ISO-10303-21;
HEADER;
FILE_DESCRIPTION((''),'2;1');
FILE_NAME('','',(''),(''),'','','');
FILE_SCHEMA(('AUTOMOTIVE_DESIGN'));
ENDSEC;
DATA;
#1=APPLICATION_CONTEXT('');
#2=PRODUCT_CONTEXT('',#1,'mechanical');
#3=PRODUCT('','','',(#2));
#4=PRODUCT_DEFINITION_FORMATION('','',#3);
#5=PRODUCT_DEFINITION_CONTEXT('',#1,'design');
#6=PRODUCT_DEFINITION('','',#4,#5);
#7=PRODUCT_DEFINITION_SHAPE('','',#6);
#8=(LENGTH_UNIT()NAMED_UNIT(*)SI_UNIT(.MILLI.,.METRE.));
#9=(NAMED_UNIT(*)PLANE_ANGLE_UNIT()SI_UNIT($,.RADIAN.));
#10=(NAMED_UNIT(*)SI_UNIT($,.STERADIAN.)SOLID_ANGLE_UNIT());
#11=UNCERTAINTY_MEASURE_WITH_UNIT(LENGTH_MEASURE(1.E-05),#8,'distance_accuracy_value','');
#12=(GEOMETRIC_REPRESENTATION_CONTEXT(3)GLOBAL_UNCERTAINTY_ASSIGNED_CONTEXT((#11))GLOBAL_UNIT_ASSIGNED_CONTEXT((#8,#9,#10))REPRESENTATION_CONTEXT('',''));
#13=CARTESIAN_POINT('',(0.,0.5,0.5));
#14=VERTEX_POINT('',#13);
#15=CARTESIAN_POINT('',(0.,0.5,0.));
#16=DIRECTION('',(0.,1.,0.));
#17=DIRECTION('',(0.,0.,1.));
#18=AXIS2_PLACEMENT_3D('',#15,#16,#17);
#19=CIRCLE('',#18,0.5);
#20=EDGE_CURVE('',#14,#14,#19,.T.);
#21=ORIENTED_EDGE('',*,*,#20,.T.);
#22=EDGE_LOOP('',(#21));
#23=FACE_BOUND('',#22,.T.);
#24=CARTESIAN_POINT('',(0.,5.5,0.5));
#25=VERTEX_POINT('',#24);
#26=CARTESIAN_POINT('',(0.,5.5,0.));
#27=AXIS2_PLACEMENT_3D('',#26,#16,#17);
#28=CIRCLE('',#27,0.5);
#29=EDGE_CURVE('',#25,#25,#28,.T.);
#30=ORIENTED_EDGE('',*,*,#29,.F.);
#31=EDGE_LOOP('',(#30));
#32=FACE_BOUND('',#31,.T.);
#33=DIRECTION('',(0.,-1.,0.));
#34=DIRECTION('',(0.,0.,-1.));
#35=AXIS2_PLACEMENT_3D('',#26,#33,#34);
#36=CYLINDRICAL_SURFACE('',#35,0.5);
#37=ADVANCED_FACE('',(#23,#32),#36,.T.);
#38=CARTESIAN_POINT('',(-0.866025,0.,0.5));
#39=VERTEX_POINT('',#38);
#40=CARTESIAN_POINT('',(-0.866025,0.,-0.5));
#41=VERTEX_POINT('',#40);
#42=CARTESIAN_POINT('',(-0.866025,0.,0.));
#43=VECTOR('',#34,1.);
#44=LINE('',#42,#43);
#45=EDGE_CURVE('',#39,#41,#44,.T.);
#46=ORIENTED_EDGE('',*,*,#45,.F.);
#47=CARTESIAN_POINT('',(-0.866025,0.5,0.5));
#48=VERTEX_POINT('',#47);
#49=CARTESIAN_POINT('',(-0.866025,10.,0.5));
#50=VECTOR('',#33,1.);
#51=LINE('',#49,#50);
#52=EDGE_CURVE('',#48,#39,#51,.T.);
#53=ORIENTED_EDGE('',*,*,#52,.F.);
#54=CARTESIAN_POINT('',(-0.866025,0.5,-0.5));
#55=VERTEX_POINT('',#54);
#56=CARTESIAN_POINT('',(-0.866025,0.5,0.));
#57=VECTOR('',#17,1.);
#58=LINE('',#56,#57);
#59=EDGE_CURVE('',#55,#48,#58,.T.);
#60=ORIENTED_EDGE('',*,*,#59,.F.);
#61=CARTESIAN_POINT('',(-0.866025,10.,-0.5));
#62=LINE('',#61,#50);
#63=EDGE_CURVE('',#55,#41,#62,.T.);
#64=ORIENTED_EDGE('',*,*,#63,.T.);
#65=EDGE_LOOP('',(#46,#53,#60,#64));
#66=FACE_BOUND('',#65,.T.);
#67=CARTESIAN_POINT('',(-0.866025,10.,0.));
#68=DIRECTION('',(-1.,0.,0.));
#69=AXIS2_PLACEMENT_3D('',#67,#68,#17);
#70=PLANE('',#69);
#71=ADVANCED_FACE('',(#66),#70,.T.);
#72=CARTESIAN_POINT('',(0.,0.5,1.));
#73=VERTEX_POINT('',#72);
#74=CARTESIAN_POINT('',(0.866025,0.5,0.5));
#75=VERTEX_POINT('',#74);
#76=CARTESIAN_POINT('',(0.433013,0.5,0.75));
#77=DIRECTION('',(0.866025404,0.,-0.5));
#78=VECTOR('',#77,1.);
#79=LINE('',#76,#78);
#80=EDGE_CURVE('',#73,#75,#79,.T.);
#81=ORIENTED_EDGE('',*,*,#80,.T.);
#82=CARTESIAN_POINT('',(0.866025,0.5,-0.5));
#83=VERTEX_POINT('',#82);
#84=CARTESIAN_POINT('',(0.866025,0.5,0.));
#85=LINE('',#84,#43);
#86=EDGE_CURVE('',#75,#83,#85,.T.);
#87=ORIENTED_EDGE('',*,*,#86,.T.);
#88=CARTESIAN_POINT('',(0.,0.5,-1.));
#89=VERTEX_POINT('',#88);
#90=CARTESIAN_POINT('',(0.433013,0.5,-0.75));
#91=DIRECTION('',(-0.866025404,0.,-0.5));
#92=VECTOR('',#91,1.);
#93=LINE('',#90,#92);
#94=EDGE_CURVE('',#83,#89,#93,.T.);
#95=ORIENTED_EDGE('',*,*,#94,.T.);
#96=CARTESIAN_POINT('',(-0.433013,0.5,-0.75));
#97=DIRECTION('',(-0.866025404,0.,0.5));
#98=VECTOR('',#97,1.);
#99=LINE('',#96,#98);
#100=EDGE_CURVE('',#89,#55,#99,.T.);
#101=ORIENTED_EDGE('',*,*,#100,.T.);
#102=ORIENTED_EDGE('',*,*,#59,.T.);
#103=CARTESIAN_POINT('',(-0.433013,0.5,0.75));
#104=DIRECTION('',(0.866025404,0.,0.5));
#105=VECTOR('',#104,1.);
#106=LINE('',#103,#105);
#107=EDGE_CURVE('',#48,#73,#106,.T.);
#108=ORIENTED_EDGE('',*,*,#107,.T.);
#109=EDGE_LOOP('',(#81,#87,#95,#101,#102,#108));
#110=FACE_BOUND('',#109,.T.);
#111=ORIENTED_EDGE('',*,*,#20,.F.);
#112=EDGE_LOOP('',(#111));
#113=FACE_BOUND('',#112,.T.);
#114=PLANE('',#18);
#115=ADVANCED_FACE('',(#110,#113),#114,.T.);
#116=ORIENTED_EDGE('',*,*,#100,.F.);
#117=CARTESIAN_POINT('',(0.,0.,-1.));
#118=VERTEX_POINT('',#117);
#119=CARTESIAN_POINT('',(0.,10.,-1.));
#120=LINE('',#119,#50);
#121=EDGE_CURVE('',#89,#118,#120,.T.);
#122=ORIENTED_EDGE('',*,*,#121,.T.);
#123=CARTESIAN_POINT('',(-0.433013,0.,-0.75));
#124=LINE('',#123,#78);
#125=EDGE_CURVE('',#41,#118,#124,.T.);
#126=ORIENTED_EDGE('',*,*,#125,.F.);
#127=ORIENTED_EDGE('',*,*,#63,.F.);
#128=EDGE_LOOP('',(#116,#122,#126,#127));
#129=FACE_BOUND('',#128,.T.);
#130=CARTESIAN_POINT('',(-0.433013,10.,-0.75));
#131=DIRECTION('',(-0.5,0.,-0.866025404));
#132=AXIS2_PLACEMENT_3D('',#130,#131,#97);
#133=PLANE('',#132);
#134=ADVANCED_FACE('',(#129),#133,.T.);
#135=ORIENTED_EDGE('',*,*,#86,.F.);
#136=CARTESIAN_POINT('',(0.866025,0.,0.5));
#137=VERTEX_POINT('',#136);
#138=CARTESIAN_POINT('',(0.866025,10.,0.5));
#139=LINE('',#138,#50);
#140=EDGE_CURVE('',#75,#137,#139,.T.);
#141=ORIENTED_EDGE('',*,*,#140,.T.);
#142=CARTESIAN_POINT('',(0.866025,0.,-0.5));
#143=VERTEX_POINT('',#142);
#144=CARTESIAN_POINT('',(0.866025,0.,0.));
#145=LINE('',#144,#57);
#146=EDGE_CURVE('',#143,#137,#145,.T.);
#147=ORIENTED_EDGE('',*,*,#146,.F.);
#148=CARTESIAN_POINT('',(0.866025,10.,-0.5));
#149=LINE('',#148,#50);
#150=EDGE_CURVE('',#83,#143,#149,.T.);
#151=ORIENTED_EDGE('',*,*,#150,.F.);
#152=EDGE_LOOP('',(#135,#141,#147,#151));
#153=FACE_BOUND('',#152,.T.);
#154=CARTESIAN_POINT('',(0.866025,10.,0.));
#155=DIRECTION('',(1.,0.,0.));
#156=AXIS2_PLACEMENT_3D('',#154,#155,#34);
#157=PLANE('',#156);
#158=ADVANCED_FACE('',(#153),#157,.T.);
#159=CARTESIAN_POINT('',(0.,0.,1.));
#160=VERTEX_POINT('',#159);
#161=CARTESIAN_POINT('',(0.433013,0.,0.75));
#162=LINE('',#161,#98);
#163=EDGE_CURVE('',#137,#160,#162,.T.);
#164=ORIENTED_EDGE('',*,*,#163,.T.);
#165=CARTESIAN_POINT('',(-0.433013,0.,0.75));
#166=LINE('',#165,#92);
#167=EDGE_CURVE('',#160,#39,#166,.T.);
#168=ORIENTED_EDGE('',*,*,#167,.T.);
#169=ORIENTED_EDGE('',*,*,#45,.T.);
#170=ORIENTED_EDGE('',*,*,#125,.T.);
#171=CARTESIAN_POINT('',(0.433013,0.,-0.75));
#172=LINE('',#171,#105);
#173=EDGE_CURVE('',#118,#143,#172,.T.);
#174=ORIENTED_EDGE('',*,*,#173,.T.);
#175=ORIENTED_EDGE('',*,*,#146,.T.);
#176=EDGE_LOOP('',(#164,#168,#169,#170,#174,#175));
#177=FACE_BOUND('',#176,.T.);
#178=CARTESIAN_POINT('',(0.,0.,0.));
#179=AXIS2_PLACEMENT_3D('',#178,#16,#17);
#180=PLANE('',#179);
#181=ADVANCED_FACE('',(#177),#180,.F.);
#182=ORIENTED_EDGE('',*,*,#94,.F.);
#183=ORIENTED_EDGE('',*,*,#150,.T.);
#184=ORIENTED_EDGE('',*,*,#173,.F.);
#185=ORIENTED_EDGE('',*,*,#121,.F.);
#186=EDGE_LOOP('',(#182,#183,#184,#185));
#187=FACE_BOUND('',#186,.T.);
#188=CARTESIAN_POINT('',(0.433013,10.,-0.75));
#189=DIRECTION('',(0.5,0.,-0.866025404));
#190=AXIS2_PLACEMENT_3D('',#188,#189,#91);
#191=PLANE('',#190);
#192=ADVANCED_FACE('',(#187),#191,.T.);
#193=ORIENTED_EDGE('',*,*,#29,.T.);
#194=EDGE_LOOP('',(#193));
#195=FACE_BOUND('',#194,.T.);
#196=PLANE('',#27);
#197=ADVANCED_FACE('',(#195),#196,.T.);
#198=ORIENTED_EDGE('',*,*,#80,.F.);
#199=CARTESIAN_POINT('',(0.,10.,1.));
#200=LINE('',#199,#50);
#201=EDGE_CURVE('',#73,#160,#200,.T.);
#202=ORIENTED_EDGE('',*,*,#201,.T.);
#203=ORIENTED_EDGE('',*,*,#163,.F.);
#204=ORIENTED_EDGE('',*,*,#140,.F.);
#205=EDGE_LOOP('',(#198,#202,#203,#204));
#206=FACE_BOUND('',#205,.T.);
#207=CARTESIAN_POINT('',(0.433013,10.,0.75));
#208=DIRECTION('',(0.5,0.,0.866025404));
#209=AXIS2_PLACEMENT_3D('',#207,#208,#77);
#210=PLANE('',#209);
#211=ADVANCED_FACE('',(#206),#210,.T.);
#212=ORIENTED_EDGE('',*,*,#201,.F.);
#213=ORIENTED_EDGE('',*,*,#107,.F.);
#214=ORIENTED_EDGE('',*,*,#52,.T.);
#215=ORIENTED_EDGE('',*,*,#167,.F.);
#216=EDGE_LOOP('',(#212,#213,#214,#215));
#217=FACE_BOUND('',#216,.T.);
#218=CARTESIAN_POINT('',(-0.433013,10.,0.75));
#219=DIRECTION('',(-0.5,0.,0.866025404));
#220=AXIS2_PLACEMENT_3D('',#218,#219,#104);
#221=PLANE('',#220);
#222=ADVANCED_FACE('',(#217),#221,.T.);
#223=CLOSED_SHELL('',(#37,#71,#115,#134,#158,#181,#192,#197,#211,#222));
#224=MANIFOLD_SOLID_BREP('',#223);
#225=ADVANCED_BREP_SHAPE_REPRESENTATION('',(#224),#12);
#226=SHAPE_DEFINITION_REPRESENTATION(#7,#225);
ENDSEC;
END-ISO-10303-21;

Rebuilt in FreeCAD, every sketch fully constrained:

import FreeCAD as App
import Part
import Sketcher

V = App.Vector
Q = App.Units.Quantity

doc = App.newDocument("Part")
body = doc.addObject("PartDesign::Body", "Body")

sketch1 = body.newObject("Sketcher::SketchObject", "Sketch")
sketch1.AttachmentSupport = (doc.getObject("XZ_Plane"), [""])
sketch1.MapMode = "FlatFace"
sketch1.addGeometry(Part.Circle(V(0, 0, 0), V(0, 0, 1), 1), False)
sketch1.addConstraint([
    Sketcher.Constraint("Coincident", 0, 3, -1, 1),
    Sketcher.Constraint("Diameter", 0, Q("2 mm")),
])
pad1 = body.newObject("PartDesign::Pad", "Pad")
pad1.Profile = sketch1
pad1.Length = 0.5
pad1.Reversed = True

sketch2 = body.newObject("Sketcher::SketchObject", "Sketch001")
sketch2.AttachmentSupport = (doc.getObject("XZ_Plane"), [""])
sketch2.MapMode = "FlatFace"
sketch2.AttachmentOffset = App.Placement(V(0, 0, -0.5), App.Rotation())
sketch2.addGeometry(Part.Circle(V(0, 0, 0), V(0, 0, 1), 0.5), False)
sketch2.addConstraint([
    Sketcher.Constraint("Coincident", 0, 3, -1, 1),
    Sketcher.Constraint("Diameter", 0, Q("1 mm")),
])
pad2 = body.newObject("PartDesign::Pad", "Pad001")
pad2.Profile = sketch2
pad2.Length = 5
pad2.Reversed = True

sketch3 = body.newObject("Sketcher::SketchObject", "Sketch002")
sketch3.AttachmentSupport = (doc.getObject("XZ_Plane"), [""])
sketch3.MapMode = "FlatFace"
sketch3.addGeometry([
    Part.LineSegment(V(2.6, -2.6, 0), V(2.6, 2.6, 0)),
    Part.LineSegment(V(2.6, 2.6, 0), V(-2.6, 2.6, 0)),
    Part.LineSegment(V(-2.6, 2.6, 0), V(-2.6, -2.6, 0)),
    Part.LineSegment(V(-2.6, -2.6, 0), V(2.6, -2.6, 0)),
    Part.LineSegment(V(0, -1, 0), V(-0.9, -0.5, 0)),
    Part.LineSegment(V(-0.9, -0.5, 0), V(-0.9, 0.5, 0)),
    Part.LineSegment(V(-0.9, 0.5, 0), V(0, 1, 0)),
    Part.LineSegment(V(0, 1, 0), V(0.9, 0.5, 0)),
    Part.LineSegment(V(0.9, 0.5, 0), V(0.9, -0.5, 0)),
    Part.LineSegment(V(0.9, -0.5, 0), V(0, -1, 0)),
], False)
sketch3.addConstraint([
    Sketcher.Constraint("Coincident", 0, 2, 1, 1),
    Sketcher.Constraint("Coincident", 1, 2, 2, 1),
    Sketcher.Constraint("Coincident", 2, 2, 3, 1),
    Sketcher.Constraint("Coincident", 3, 2, 0, 1),
    Sketcher.Constraint("Coincident", 4, 2, 5, 1),
    Sketcher.Constraint("Coincident", 5, 2, 6, 1),
    Sketcher.Constraint("Coincident", 6, 2, 7, 1),
    Sketcher.Constraint("Coincident", 7, 2, 8, 1),
    Sketcher.Constraint("Coincident", 8, 2, 9, 1),
    Sketcher.Constraint("Coincident", 9, 2, 4, 1),
    Sketcher.Constraint("Vertical", 0),
    Sketcher.Constraint("Horizontal", 1),
    Sketcher.Constraint("Vertical", 2),
    Sketcher.Constraint("Horizontal", 3),
    Sketcher.Constraint("Vertical", 5),
    Sketcher.Constraint("Vertical", 8),
    Sketcher.Constraint("Symmetric", 0, 2, 2, 2, -1, 1),
    Sketcher.Constraint("Symmetric", 4, 2, 7, 2, -1, 1),
    Sketcher.Constraint("Symmetric", 6, 2, 9, 2, -1, 1),
    Sketcher.Constraint("PointOnObject", 6, 2, -2),
    Sketcher.Constraint("Parallel", 6, 9),
    Sketcher.Constraint("Horizontal", 5, 2, 7, 2),
    Sketcher.Constraint("Equal", 3, 0),
    Sketcher.Constraint("DistanceY", 5, 1, 5, 2, Q("1 mm")),
    Sketcher.Constraint("Angle", 4, Q("150 deg")),
    Sketcher.Constraint("Distance", 4, Q("1 mm")),
    Sketcher.Constraint("DistanceX", 1, 2, 1, 1, Q("5.236 mm")),
])
pocket1 = body.newObject("PartDesign::Pocket", "Pocket")
pocket1.Profile = sketch3
pocket1.Length = 10

doc.recompute()
